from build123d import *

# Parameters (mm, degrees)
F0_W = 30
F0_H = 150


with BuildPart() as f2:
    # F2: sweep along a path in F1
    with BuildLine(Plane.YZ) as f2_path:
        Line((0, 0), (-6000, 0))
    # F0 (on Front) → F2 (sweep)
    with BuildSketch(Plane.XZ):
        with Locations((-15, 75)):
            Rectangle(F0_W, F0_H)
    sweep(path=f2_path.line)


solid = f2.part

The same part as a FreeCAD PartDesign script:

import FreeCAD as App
import Part
import Sketcher

V = App.Vector
Q = App.Units.Quantity

doc = App.newDocument("Part")
body = doc.addObject("PartDesign::Body", "Body")

# Sketch on XZ plane
sketch1 = doc.addObject("Sketcher::SketchObject", "Sketch")
body.addObject(sketch1)
sketch1.AttachmentSupport = (doc.XZ_Plane, [""])
sketch1.MapMode = "FlatFace"
sketch1.addGeometry([
    Part.LineSegment(V(-30, 150, 0), V(-30, 0, 0)),
    Part.LineSegment(V(-30, 0, 0), V(0, 0, 0)),
    Part.LineSegment(V(0, 0, 0), V(0, 150, 0)),
    Part.LineSegment(V(0, 150, 0), V(-30, 150, 0)),
], False)
sketch1.addConstraint([
    Sketcher.Constraint("Coincident", 0, 2, 1, 1),
    Sketcher.Constraint("Coincident", 1, 2, 2, 1),
    Sketcher.Constraint("Coincident", 2, 2, 3, 1),
    Sketcher.Constraint("Coincident", 3, 2, 0, 1),
    Sketcher.Constraint("Vertical", 0),
    Sketcher.Constraint("Horizontal", 1),
    Sketcher.Constraint("Vertical", 2),
    Sketcher.Constraint("Horizontal", 3),
    Sketcher.Constraint("Coincident", 1, 2, -1, 1),
    Sketcher.Constraint("DistanceX", 1, 1, 1, 2, Q("30 mm")),
    Sketcher.Constraint("DistanceY", 0, 2, 0, 1, Q("150 mm")),
])

# Sketch on XY plane
sketch2 = doc.addObject("Sketcher::SketchObject", "Sketch001")
body.addObject(sketch2)
sketch2.AttachmentSupport = (doc.XY_Plane, [""])
sketch2.MapMode = "FlatFace"
sketch2.addGeometry(Part.LineSegment(V(0, 0, 0), V(0, -6000, 0)), False)
sketch2.addConstraint([
    Sketcher.Constraint("Vertical", 0),
    Sketcher.Constraint("Coincident", 0, 1, -1, 1),
    Sketcher.Constraint("DistanceY", 0, 2, 0, 1, Q("6000 mm")),
])
doc.recompute()

additivepipe = doc.addObject("PartDesign::AdditivePipe", "AdditivePipe")
body.addObject(additivepipe)
additivepipe.Profile = sketch1
additivepipe.Spine = (sketch2, ["Edge1"])

doc.recompute()
